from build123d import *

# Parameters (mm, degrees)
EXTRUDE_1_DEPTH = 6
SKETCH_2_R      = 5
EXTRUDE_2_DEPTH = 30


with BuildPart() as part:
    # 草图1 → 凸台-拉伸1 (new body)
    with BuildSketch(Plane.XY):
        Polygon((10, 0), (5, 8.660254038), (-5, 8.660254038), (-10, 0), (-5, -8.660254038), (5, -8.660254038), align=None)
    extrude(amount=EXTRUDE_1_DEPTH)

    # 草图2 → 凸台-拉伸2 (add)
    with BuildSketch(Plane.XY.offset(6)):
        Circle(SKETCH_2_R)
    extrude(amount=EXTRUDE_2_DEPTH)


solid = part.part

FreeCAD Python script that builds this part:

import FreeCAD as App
import Part
import Sketcher

V = App.Vector
Q = App.Units.Quantity


def add_polygon(sketch, points):
    """Adds a closed chain of lines whose ends are joined by coincident constraints."""
    first, n = sketch.GeometryCount, len(points)
    for a, b in zip(points, points[1:] + points[:1]):
        sketch.addGeometry(Part.LineSegment(App.Vector(*a, 0), App.Vector(*b, 0)), False)
    for i in range(n):
        sketch.addConstraint(Sketcher.Constraint("Coincident", first + i, 2, first + (i + 1) % n, 1))

doc = App.newDocument("Part")
params = doc.addObject("Spreadsheet::Sheet", "Params")
for row, (alias, value) in enumerate([
    ("sketch1_width", "10 mm"),
    ("sketch1_length", "10 mm"),
    ("pad1_length", "6 mm"),
    ("sketch2_diameter", "10 mm"),
    ("pad2_length", "30 mm"),
], start=1):
    params.set(f"A{row}", alias)
    params.set(f"B{row}", "=" + value)
    params.setAlias(f"B{row}", alias)

body = doc.addObject("PartDesign::Body", "Body")

# Sketch on XY plane
sketch1 = body.newObject("Sketcher::SketchObject", "Sketch")
sketch1.AttachmentSupport = (doc.getObject("XY_Plane"), [""])
sketch1.MapMode = "FlatFace"
add_polygon(sketch1, [(10, 0), (5, 8.660254), (-5, 8.660254), (-10, 0), (-5, -8.660254), (5, -8.660254)])  # lines 0-5
sketch1.addConstraint([
    Sketcher.Constraint("Horizontal", 1),
    Sketcher.Constraint("Horizontal", 4),
    Sketcher.Constraint("Symmetric", 0, 2, 3, 2, -1, 1),
    Sketcher.Constraint("Symmetric", 2, 2, 5, 2, -1, 1),
    Sketcher.Constraint("PointOnObject", 2, 2, -1),
    Sketcher.Constraint("Parallel", 2, 5),
    Sketcher.Constraint("Vertical", 1, 2, 3, 2),
    Sketcher.Constraint("DistanceX", 1, 2, 1, 1, 10.0),
    Sketcher.Constraint("Angle", 0, Q("120 deg")),
    Sketcher.Constraint("Distance", 0, 10.0),
])
sketch1.setExpression("Constraints[13]", "Params.sketch1_width")
sketch1.setExpression("Constraints[15]", "Params.sketch1_length")
pad1 = body.newObject("PartDesign::Pad", "Pad")
pad1.Profile = sketch1
pad1.setExpression("Length", "Params.pad1_length")

# Sketch on XY plane
sketch2 = body.newObject("Sketcher::SketchObject", "Sketch001")
sketch2.AttachmentSupport = (doc.getObject("XY_Plane"), [""])
sketch2.MapMode = "FlatFace"
sketch2.AttachmentOffset = App.Placement(V(0, 0, 6), App.Rotation())
sketch2.addGeometry(Part.Circle(V(0, 0, 0), V(0, 0, 1), 5), False)
sketch2.addConstraint([
    Sketcher.Constraint("Coincident", 0, 3, -1, 1),
    Sketcher.Constraint("Diameter", 0, 10.0),
])
sketch2.setExpression("Constraints[1]", "Params.sketch2_diameter")
pad2 = body.newObject("PartDesign::Pad", "Pad001")
pad2.Profile = sketch2
pad2.setExpression("Length", "Params.pad2_length")

doc.recompute()
